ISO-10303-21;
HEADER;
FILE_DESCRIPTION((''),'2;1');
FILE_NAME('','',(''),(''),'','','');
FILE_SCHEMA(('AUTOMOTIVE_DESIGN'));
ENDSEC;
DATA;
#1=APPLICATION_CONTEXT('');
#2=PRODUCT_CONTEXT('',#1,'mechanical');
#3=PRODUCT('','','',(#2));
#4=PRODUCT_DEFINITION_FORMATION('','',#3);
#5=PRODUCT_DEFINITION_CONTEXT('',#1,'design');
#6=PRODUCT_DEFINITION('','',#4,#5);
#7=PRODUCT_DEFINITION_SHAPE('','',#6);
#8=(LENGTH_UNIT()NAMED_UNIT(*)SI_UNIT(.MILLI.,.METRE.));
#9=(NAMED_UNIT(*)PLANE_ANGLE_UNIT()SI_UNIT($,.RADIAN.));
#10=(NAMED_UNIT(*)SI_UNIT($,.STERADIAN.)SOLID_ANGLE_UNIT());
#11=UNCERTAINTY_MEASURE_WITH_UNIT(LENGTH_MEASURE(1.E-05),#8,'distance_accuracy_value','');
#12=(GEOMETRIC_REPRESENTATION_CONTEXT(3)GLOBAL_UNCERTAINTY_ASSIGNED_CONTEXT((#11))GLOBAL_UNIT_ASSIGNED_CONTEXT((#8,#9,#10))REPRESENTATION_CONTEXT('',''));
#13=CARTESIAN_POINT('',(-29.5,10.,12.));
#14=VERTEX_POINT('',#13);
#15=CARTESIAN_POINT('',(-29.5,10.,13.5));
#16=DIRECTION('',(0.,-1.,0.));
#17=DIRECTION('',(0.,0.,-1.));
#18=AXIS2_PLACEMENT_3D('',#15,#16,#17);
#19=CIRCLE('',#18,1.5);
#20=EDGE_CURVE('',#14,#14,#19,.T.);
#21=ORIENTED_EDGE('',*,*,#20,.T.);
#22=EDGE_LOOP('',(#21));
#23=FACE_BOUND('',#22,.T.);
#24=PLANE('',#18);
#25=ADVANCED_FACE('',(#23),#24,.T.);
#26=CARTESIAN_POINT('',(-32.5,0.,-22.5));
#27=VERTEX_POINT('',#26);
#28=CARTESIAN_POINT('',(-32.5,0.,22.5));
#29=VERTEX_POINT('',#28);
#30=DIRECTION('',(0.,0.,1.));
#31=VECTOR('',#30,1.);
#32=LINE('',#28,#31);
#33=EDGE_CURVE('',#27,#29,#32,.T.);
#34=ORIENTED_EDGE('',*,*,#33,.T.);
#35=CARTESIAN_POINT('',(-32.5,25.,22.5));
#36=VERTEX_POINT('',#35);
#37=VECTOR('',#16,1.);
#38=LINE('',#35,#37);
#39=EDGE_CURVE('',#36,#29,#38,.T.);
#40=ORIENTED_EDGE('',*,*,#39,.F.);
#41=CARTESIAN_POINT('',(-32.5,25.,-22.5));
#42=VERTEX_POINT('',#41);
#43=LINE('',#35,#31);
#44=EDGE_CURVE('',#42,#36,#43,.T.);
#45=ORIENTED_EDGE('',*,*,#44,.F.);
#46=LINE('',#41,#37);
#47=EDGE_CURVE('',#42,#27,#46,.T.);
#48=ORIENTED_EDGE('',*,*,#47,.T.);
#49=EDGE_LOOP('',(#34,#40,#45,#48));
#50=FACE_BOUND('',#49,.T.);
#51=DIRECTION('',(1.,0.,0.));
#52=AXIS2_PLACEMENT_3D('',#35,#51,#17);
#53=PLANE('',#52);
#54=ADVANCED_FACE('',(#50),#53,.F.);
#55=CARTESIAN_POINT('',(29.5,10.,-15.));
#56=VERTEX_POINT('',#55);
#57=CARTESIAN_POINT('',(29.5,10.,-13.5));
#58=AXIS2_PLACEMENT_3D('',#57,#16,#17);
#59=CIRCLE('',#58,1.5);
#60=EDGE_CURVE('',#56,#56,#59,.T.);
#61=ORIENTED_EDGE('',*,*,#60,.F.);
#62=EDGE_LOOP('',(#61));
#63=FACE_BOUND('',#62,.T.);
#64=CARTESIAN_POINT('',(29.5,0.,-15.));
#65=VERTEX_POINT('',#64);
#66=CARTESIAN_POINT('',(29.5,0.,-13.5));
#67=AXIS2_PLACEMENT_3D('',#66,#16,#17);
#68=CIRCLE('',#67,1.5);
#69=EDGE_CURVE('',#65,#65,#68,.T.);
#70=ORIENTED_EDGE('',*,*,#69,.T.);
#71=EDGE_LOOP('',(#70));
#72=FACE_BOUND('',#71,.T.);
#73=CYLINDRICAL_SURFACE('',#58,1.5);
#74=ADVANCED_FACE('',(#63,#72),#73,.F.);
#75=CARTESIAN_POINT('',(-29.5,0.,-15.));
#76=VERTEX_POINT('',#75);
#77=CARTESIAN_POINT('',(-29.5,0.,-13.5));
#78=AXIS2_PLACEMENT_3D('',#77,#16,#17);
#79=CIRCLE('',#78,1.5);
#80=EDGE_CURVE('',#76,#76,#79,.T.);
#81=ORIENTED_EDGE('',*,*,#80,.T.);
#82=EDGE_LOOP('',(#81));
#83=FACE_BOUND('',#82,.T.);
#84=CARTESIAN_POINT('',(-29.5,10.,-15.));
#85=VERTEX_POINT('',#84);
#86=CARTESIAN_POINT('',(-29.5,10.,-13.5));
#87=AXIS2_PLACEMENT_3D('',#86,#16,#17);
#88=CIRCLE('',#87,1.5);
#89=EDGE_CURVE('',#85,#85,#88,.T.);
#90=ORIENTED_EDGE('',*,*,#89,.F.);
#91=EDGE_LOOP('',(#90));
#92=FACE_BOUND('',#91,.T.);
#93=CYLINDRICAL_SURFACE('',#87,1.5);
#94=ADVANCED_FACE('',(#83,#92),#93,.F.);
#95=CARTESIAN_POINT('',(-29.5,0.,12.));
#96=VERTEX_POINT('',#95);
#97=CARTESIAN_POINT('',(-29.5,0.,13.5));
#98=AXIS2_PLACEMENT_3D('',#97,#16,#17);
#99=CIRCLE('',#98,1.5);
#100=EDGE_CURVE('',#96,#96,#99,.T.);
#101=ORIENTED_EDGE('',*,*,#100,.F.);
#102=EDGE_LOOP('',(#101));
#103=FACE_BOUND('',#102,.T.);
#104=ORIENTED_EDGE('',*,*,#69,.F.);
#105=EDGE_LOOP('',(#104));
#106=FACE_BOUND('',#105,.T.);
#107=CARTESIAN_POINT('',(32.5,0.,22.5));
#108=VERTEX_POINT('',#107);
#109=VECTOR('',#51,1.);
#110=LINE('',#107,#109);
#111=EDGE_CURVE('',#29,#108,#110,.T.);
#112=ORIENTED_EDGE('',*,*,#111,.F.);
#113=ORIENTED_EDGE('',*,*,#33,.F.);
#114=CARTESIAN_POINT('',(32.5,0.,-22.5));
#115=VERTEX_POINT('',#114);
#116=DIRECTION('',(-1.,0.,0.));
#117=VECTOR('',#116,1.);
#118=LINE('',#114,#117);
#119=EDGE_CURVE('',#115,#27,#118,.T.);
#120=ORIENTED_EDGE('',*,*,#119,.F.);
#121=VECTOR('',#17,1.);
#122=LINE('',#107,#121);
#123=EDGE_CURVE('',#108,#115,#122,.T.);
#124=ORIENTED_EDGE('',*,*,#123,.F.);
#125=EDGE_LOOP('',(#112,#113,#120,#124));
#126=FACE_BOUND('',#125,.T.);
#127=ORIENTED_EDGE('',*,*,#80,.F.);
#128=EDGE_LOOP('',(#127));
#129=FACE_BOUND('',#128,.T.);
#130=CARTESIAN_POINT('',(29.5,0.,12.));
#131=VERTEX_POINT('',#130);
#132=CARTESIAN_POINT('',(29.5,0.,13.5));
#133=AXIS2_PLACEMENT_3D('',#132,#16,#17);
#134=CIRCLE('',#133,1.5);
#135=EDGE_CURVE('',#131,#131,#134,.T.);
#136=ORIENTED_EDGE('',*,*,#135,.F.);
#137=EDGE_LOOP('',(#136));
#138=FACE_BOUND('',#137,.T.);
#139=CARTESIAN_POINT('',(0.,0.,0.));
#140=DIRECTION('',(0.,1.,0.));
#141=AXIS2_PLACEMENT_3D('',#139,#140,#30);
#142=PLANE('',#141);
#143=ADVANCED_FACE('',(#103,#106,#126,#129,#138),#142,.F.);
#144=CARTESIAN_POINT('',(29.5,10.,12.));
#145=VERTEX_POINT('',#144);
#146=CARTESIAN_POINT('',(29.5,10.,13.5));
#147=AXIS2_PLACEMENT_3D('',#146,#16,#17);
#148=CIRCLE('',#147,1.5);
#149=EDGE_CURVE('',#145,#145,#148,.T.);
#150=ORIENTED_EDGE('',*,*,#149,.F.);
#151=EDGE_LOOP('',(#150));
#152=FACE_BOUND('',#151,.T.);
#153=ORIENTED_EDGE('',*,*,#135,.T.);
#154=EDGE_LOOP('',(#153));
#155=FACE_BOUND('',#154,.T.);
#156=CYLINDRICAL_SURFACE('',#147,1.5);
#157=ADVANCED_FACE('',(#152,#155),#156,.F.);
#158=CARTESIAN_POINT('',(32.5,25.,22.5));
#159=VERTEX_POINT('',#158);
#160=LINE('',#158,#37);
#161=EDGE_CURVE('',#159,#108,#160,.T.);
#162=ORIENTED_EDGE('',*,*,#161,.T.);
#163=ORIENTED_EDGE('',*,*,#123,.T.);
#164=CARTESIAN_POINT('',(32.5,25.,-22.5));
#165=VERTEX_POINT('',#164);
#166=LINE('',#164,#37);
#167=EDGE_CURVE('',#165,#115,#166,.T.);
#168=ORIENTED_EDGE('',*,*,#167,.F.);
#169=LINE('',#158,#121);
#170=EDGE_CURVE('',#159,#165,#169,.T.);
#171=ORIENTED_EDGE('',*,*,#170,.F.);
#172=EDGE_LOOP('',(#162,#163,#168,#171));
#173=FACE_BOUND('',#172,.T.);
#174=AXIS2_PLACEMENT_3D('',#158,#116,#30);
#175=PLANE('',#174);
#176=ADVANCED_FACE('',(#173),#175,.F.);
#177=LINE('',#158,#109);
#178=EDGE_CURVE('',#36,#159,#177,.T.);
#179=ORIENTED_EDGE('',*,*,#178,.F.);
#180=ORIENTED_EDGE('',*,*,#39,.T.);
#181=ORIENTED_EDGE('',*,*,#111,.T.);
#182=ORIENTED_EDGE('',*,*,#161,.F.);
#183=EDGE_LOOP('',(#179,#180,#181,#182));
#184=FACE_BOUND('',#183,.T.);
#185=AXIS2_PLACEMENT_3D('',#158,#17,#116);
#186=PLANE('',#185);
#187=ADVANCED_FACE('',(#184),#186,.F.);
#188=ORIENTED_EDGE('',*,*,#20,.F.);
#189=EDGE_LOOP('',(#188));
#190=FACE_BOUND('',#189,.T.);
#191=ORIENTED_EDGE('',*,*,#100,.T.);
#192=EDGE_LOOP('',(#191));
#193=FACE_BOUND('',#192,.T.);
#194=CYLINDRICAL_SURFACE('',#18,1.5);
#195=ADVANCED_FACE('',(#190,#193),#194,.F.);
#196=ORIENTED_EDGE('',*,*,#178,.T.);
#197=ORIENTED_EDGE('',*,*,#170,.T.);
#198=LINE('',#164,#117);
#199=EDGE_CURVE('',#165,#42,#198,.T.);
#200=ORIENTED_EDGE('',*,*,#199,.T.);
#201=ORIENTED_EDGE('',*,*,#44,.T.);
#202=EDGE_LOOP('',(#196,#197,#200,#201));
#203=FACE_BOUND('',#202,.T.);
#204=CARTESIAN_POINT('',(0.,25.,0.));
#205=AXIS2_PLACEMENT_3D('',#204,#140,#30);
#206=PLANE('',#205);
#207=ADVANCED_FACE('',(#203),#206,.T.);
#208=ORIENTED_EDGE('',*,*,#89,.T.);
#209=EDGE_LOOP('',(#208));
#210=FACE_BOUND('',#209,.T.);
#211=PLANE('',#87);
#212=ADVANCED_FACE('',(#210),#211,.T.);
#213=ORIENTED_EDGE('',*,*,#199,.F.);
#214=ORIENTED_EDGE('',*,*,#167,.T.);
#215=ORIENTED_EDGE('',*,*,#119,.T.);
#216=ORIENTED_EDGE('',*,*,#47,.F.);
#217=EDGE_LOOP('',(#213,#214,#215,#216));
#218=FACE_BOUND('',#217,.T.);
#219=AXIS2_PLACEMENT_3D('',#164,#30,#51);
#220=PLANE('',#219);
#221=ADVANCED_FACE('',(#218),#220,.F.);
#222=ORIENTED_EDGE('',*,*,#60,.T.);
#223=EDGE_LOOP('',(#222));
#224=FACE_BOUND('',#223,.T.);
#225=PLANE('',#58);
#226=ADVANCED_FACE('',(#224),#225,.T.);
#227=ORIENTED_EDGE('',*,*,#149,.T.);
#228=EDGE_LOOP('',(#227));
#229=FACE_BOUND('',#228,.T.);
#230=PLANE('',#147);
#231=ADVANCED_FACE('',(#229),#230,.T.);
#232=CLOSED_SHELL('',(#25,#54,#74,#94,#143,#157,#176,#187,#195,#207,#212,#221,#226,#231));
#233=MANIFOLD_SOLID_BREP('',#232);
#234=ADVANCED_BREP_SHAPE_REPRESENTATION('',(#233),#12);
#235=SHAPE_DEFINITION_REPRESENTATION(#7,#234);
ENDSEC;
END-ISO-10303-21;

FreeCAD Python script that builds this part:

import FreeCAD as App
import Part
import Sketcher
from FreeCAD import Vector

doc = App.newDocument("Part")
body = doc.addObject("PartDesign::Body", "Body")

# Sketch on XZ plane
sketch1 = body.newObject("Sketcher::SketchObject", "Sketch")
sketch1.AttachmentSupport = (doc.getObject("XZ_Plane"), [""])
sketch1.MapMode = "FlatFace"
sketch1.addGeometry([
    Part.LineSegment(Vector(-32, -22, 0), Vector(-32, 22, 0)),
    Part.LineSegment(Vector(-32, 22, 0), Vector(32, 22, 0)),
    Part.LineSegment(Vector(32, 22, 0), Vector(32, -22, 0)),
    Part.LineSegment(Vector(32, -22, 0), Vector(-32, -22, 0)),
], False)
sketch1.addConstraint([
    Sketcher.Constraint("Coincident", 0, 2, 1, 1),
    Sketcher.Constraint("Coincident", 1, 2, 2, 1),
    Sketcher.Constraint("Coincident", 2, 2, 3, 1),
    Sketcher.Constraint("Coincident", 3, 2, 0, 1),
    Sketcher.Constraint("Vertical", 0),
    Sketcher.Constraint("Horizontal", 1),
    Sketcher.Constraint("Vertical", 2),
    Sketcher.Constraint("Horizontal", 3),
    Sketcher.Constraint("Symmetric", 0, 2, 2, 2, -1, 1),
    Sketcher.Constraint("DistanceX", 1, 1, 1, 2, 65.0),
    Sketcher.Constraint("DistanceY", 0, 1, 0, 2, 45.0),
])
pad1 = body.newObject("PartDesign::Pad", "Pad")
pad1.Profile = sketch1
pad1.Length = 25
pad1.Reversed = True

# Sketch on XZ plane
sketch2 = body.newObject("Sketcher::SketchObject", "Sketch001")
sketch2.AttachmentSupport = (doc.getObject("XZ_Plane"), [""])
sketch2.MapMode = "FlatFace"
sketch2.addGeometry([
    Part.Circle(Vector(-29.5, 13.5, 0), Vector(0, 0, 1), 1.5),
    Part.Circle(Vector(29.5, 13.5, 0), Vector(0, 0, 1), 1.5),
    Part.Circle(Vector(-29.5, -13.5, 0), Vector(0, 0, 1), 1.5),
    Part.Circle(Vector(29.5, -13.5, 0), Vector(0, 0, 1), 1.5),
], False)
sketch2.addConstraint([
    Sketcher.Constraint("Equal", 0, 1),
    Sketcher.Constraint("Equal", 1, 2),
    Sketcher.Constraint("Equal", 2, 3),
    Sketcher.Constraint("Symmetric", 1, 3, 2, 3, -1, 1),
    Sketcher.Constraint("Symmetric", 0, 3, 3, 3, -1, 1),
    Sketcher.Constraint("Symmetric", 0, 3, 1, 3, -2),
    Sketcher.Constraint("Diameter", 0, 3.0),
    Sketcher.Constraint("DistanceX", 0, 3, 1, 3, 59.0),
    Sketcher.Constraint("DistanceY", 2, 3, 0, 3, 27.0),
])
pocket1 = body.newObject("PartDesign::Pocket", "Pocket")
pocket1.Profile = sketch2
pocket1.Length = 10

doc.recompute()
